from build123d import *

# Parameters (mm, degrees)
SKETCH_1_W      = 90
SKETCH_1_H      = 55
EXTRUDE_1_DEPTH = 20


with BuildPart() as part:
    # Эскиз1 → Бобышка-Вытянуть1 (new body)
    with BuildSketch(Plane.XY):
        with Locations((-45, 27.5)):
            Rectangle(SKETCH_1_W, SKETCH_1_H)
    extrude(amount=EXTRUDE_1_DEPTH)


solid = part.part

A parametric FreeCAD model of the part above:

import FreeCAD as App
import Part
import Sketcher
from FreeCAD import Vector


def add_polygon(sketch, points):
    """Adds a closed chain of lines whose ends are joined by coincident constraints."""
    first, n = sketch.GeometryCount, len(points)
    for a, b in zip(points, points[1:] + points[:1]):
        sketch.addGeometry(Part.LineSegment(App.Vector(*a, 0), App.Vector(*b, 0)), False)
    for i in range(n):
        sketch.addConstraint(Sketcher.Constraint("Coincident", first + i, 2, first + (i + 1) % n, 1))

doc = App.newDocument("Part")
params = doc.addObject("Spreadsheet::Sheet", "Params")
for row, (alias, value) in enumerate([
    ("sketch1_width", "90 mm"),
    ("sketch1_height", "55 mm"),
    ("pad1_length", "20 mm"),
], start=1):
    params.set(f"A{row}", alias)
    params.set(f"B{row}", "=" + value)
    params.setAlias(f"B{row}", alias)

body = doc.addObject("PartDesign::Body", "Body")

# Sketch on XY plane
sketch1 = body.newObject("Sketcher::SketchObject", "Sketch")
sketch1.AttachmentSupport = (doc.getObject("XY_Plane"), [""])
sketch1.MapMode = "FlatFace"
add_polygon(sketch1, [(-90, 55), (-90, 0), (0, 0), (0, 55)])  # lines 0-3
sketch1.addConstraint(Sketcher.Constraint("Vertical", 0))
sketch1.addConstraint(Sketcher.Constraint("Horizontal", 1))
sketch1.addConstraint(Sketcher.Constraint("Vertical", 2))
sketch1.addConstraint(Sketcher.Constraint("Horizontal", 3))
sketch1.addConstraint(Sketcher.Constraint("Coincident", 1, 2, -1, 1))
sketch1.addConstraint(Sketcher.Constraint("DistanceX", 1, 1, 1, 2, 90.0))
sketch1.addConstraint(Sketcher.Constraint("DistanceY", 0, 2, 0, 1, 55.0))
sketch1.setExpression("Constraints[9]", "Params.sketch1_width")
sketch1.setExpression("Constraints[10]", "Params.sketch1_height")
pad1 = body.newObject("PartDesign::Pad", "Pad")
pad1.Profile = sketch1
pad1.setExpression("Length", "Params.pad1_length")

doc.recompute()
